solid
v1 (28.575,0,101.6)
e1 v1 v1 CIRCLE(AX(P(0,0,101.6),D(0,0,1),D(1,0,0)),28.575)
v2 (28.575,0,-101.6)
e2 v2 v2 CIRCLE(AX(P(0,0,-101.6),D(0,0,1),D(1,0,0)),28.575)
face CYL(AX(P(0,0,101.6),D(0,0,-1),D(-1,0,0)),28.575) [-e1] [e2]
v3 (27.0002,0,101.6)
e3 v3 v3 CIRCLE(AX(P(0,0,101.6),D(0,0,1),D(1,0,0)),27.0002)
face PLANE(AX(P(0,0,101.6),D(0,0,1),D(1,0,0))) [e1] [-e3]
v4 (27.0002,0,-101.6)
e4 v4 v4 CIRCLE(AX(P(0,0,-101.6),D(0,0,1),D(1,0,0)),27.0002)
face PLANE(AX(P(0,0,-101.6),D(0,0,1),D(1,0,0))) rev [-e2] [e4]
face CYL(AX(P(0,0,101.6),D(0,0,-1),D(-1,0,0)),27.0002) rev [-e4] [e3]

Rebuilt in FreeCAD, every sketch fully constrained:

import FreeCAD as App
import Part
import Sketcher
Q = App.Units.Quantity

doc = App.newDocument("Part")
params = doc.addObject("Spreadsheet::Sheet", "Params")
for row, (alias, value) in enumerate([
    ("sketch1_diameter", "2.25 in"),
    ("sketch1_diameter2", "2.126 in"),
    ("pad1_length", "8 in"),
], start=1):
    params.set(f"A{row}", alias)
    params.set(f"B{row}", "=" + value)
    params.setAlias(f"B{row}", alias)

body = doc.addObject("PartDesign::Body", "Body")

sketch1 = body.newObject("Sketcher::SketchObject", "Sketch")
sketch1.AttachmentSupport = (doc.getObject("XY_Plane"), [""])
sketch1.MapMode = "FlatFace"
sketch1.addGeometry([
    Part.Circle(App.Vector(0, 0, 0), App.Vector(0, 0, 1), 29),
    Part.Circle(App.Vector(0, 0, 0), App.Vector(0, 0, 1), 27),
], False)
sketch1.addConstraint([
    Sketcher.Constraint("Coincident", 0, 3, -1, 1),
    Sketcher.Constraint("Coincident", 1, 3, -1, 1),
    Sketcher.Constraint("Diameter", 0, Q("2.25 in")),
    Sketcher.Constraint("Diameter", 1, Q("2.126 in")),
])
sketch1.setExpression("Constraints[2]", "Params.sketch1_diameter")
sketch1.setExpression("Constraints[3]", "Params.sketch1_diameter2")
pad1 = body.newObject("PartDesign::Pad", "Pad")
pad1.Profile = sketch1
pad1.setExpression("Length", "Params.pad1_length")
pad1.Midplane = True

doc.recompute()
